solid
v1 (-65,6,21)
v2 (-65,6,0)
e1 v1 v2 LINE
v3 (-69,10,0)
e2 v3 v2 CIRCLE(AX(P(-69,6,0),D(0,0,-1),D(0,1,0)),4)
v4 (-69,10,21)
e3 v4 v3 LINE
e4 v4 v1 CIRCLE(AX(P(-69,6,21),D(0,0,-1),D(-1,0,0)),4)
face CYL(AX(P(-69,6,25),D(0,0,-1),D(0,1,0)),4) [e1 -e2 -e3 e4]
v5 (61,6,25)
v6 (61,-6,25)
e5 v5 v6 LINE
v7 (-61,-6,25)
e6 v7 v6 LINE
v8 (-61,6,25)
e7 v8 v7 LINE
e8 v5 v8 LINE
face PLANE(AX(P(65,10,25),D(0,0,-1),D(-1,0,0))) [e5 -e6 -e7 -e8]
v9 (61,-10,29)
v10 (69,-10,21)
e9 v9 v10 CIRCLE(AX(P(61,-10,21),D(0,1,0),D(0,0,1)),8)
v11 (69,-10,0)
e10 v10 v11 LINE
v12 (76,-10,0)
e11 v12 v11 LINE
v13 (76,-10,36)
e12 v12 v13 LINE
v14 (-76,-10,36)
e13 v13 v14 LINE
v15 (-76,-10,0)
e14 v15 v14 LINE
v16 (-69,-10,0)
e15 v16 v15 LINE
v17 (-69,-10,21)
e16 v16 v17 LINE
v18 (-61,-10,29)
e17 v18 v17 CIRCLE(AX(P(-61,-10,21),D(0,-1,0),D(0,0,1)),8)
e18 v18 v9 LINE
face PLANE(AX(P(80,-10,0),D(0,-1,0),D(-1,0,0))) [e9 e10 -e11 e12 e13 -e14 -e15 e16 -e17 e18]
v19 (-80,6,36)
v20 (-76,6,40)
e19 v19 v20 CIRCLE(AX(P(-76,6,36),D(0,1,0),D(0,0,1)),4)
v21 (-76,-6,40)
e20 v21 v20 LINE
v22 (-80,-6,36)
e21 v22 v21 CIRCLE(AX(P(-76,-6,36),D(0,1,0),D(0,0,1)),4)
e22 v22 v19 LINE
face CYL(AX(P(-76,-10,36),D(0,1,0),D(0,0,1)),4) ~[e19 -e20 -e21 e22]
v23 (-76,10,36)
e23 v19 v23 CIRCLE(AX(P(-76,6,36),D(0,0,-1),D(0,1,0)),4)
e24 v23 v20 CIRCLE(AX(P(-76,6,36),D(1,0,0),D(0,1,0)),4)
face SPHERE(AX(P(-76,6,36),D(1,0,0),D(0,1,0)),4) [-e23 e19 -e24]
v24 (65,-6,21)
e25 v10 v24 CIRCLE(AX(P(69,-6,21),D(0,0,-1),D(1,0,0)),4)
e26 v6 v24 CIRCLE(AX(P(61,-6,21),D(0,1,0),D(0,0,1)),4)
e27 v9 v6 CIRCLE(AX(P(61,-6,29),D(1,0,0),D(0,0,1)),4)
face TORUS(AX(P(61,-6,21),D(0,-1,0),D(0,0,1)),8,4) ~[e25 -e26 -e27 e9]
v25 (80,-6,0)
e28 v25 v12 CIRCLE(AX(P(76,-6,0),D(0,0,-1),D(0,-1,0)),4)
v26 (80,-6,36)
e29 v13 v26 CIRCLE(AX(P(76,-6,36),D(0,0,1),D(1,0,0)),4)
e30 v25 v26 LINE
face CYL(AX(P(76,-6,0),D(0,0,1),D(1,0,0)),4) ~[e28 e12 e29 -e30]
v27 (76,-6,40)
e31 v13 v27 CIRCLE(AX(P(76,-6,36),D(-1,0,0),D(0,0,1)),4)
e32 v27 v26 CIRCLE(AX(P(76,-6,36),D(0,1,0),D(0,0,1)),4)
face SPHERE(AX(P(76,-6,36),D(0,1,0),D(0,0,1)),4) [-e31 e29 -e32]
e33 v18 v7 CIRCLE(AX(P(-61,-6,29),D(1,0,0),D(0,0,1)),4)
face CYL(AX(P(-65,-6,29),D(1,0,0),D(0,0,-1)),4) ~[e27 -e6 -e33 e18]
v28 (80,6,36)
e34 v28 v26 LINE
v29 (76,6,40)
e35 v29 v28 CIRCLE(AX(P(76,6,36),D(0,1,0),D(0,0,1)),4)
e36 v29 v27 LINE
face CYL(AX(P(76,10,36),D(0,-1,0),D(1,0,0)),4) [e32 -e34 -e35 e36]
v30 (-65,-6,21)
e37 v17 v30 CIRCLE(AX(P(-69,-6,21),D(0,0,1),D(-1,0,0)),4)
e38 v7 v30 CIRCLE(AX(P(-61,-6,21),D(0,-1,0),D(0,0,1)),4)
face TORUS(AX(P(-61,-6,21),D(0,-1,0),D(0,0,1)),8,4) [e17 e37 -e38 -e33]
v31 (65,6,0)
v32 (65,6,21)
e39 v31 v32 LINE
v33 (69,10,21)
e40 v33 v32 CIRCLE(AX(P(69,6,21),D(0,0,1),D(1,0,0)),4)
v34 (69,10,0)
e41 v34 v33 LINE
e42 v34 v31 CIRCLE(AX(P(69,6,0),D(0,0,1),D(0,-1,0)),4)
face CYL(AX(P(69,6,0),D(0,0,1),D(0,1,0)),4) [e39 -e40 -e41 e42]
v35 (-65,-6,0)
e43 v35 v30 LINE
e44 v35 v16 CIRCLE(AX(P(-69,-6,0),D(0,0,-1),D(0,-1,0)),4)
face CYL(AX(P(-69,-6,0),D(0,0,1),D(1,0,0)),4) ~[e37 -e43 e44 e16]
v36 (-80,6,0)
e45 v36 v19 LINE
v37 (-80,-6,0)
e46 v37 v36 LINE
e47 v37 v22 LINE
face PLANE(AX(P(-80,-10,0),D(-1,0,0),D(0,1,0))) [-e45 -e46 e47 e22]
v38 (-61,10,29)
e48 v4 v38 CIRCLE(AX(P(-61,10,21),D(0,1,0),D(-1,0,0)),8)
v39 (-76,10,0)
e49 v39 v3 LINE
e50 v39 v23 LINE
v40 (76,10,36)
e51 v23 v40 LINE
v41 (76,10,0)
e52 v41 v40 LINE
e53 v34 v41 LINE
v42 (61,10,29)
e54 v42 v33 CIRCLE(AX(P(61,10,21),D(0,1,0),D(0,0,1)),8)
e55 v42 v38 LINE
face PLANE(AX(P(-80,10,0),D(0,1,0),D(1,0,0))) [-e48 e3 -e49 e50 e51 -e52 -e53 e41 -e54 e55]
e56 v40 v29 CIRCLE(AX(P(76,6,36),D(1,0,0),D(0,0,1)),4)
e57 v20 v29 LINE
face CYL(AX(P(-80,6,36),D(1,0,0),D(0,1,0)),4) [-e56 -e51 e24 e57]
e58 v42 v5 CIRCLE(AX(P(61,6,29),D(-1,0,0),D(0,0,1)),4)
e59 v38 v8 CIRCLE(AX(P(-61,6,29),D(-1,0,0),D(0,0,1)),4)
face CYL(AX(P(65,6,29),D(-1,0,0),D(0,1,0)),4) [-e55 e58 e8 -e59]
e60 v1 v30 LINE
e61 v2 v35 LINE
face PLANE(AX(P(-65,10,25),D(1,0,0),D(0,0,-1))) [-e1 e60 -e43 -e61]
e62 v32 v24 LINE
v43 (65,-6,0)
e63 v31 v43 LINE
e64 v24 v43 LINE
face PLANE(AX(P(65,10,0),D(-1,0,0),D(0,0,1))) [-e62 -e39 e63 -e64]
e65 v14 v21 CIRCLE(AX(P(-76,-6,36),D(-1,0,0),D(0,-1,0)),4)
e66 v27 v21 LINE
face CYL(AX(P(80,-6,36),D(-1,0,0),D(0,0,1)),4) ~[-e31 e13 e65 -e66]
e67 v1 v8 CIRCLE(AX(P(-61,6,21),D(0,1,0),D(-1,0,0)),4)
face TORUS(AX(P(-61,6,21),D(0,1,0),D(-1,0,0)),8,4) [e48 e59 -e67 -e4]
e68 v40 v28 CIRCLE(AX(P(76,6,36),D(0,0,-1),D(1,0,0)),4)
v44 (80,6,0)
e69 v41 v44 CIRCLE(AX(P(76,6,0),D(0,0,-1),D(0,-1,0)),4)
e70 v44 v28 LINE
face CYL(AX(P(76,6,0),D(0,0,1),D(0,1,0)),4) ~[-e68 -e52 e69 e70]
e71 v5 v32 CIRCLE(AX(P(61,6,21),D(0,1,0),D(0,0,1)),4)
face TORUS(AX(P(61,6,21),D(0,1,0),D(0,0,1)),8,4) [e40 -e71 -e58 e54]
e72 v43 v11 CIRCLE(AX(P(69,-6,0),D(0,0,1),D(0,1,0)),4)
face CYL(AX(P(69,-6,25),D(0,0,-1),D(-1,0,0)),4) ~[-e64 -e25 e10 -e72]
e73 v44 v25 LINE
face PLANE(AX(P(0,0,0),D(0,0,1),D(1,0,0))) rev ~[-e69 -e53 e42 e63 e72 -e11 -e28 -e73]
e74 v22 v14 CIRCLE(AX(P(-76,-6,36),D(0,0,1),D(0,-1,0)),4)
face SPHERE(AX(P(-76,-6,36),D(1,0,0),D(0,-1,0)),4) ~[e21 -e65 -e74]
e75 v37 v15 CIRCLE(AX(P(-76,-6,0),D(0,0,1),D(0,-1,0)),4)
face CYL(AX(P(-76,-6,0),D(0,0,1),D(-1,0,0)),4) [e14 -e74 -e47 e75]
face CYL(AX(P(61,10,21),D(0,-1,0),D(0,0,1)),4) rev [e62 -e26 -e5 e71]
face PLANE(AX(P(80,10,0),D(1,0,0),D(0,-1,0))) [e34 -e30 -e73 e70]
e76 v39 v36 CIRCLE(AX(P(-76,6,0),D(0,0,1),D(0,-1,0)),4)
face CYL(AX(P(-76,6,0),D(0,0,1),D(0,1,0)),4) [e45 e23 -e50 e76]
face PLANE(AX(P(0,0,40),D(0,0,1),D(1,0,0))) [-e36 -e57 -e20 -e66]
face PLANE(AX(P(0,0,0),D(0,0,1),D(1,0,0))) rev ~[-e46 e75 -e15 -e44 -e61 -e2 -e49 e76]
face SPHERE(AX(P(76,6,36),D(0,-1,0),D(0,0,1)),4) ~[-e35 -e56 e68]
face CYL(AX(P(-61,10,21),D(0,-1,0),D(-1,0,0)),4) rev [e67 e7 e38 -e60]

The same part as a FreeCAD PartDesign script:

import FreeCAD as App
import Part
import Sketcher
Q = App.Units.Quantity


def edges_at(feature, points):
    """Names of the edges that pass closest to the given points."""
    edges = feature.Shape.Edges
    near = lambda p: min(range(len(edges)), key=lambda i: edges[i].distToShape(Part.Vertex(*p))[0])
    return sorted({f"Edge{near(p) + 1}" for p in points})


def add_polygon(sketch, points):
    """Adds a closed chain of lines whose ends are joined by coincident constraints."""
    first, n = sketch.GeometryCount, len(points)
    for a, b in zip(points, points[1:] + points[:1]):
        sketch.addGeometry(Part.LineSegment(App.Vector(*a, 0), App.Vector(*b, 0)), False)
    for i in range(n):
        sketch.addConstraint(Sketcher.Constraint("Coincident", first + i, 2, first + (i + 1) % n, 1))

doc = App.newDocument("Part")
body = doc.addObject("PartDesign::Body", "Body")

# Sketch on XY plane
sketch1 = body.newObject("Sketcher::SketchObject", "Sketch")
sketch1.AttachmentSupport = (doc.getObject("XY_Plane"), [""])
sketch1.MapMode = "FlatFace"
add_polygon(sketch1, [(80, 10), (-80, 10), (-80, -10), (80, -10)])  # lines 0-3
sketch1.addConstraint([
    Sketcher.Constraint("Horizontal", 0),
    Sketcher.Constraint("Vertical", 1),
    Sketcher.Constraint("Horizontal", 2),
    Sketcher.Constraint("Vertical", 3),
    Sketcher.Constraint("Symmetric", 0, 2, 2, 2, -1, 1),
    Sketcher.Constraint("DistanceX", 0, 2, 0, 1, Q("160 mm")),
    Sketcher.Constraint("DistanceY", 1, 2, 1, 1, Q("20 mm")),
])
pad1 = body.newObject("PartDesign::Pad", "Pad")
pad1.Profile = sketch1
pad1.Length = 40

# Sketch on XZ plane
sketch2 = body.newObject("Sketcher::SketchObject", "Sketch001")
sketch2.AttachmentSupport = (doc.getObject("XZ_Plane"), [""])
sketch2.MapMode = "FlatFace"
sketch2.AttachmentOffset = App.Placement(App.Vector(0, 0, -10), App.Rotation())
add_polygon(sketch2, [(65, 0), (-65, 0), (-65, 25), (65, 25)])  # lines 0-3
sketch2.addConstraint([
    Sketcher.Constraint("Horizontal", 0),
    Sketcher.Constraint("Vertical", 1),
    Sketcher.Constraint("Horizontal", 2),
    Sketcher.Constraint("Vertical", 3),
    Sketcher.Constraint("Symmetric", 0, 2, 3, 2, -1, 1),
    Sketcher.Constraint("DistanceX", 0, 2, 0, 1, Q("130 mm")),
    Sketcher.Constraint("DistanceY", 1, 1, 1, 2, Q("25 mm")),
])
pocket1 = body.newObject("PartDesign::Pocket", "Pocket")
pocket1.Profile = sketch2
pocket1.Length = 40
pocket1.Reversed = True
doc.recompute()

fillet = body.newObject("PartDesign::Fillet", "Fillet")
fillet.Base = (pocket1, edges_at(pocket1, [
    (80, 0, 40),
    (0, 10, 40),
    (0, -10, 40),
    (80, 10, 20),
    (80, -10, 20),
    (0, 10, 25),
    (65, 10, 12.5),
    (0, -10, 25),
    (65, -10, 12.5),
    (65, 0, 25),
    (-65, -10, 12.5),
    (-65, 0, 25),
    (-65, 10, 12.5),
    (-80, -10, 20),
    (-80, 10, 20),
    (-80, 0, 40),
]))
fillet.Radius = 4

doc.recompute()
